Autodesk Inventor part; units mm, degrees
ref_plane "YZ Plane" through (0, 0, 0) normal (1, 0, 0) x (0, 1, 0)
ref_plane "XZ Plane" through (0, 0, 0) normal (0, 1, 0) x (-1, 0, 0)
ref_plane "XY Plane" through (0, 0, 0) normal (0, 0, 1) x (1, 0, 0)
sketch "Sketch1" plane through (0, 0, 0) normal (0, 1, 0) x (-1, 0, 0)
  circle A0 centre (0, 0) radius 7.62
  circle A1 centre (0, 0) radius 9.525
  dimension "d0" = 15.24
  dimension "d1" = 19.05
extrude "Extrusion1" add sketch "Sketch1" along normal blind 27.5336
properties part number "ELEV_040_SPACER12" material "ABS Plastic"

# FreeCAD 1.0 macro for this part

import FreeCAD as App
import Part
import Sketcher
Q = App.Units.Quantity

doc = App.newDocument("Part")
body = doc.addObject("PartDesign::Body", "Body")

# Sketch on XZ plane
sketch1 = body.newObject("Sketcher::SketchObject", "Sketch")
sketch1.AttachmentSupport = (doc.getObject("XZ_Plane"), [""])
sketch1.MapMode = "FlatFace"
sketch1.addGeometry([
    Part.Circle(App.Vector(0, 0, 0), App.Vector(0, 0, 1), 9.525),
    Part.Circle(App.Vector(0, 0, 0), App.Vector(0, 0, 1), 7.62),
], False)
sketch1.addConstraint([
    Sketcher.Constraint("Coincident", 0, 3, -1, 1),
    Sketcher.Constraint("Coincident", 1, 3, -1, 1),
    Sketcher.Constraint("Diameter", 1, Q("0.6 in")),
    Sketcher.Constraint("Diameter", 0, Q("0.75 in")),
])
pad1 = body.newObject("PartDesign::Pad", "Pad")
pad1.Profile = sketch1
pad1.Length = Q("1.084 in")
pad1.Reversed = True

doc.recompute()
